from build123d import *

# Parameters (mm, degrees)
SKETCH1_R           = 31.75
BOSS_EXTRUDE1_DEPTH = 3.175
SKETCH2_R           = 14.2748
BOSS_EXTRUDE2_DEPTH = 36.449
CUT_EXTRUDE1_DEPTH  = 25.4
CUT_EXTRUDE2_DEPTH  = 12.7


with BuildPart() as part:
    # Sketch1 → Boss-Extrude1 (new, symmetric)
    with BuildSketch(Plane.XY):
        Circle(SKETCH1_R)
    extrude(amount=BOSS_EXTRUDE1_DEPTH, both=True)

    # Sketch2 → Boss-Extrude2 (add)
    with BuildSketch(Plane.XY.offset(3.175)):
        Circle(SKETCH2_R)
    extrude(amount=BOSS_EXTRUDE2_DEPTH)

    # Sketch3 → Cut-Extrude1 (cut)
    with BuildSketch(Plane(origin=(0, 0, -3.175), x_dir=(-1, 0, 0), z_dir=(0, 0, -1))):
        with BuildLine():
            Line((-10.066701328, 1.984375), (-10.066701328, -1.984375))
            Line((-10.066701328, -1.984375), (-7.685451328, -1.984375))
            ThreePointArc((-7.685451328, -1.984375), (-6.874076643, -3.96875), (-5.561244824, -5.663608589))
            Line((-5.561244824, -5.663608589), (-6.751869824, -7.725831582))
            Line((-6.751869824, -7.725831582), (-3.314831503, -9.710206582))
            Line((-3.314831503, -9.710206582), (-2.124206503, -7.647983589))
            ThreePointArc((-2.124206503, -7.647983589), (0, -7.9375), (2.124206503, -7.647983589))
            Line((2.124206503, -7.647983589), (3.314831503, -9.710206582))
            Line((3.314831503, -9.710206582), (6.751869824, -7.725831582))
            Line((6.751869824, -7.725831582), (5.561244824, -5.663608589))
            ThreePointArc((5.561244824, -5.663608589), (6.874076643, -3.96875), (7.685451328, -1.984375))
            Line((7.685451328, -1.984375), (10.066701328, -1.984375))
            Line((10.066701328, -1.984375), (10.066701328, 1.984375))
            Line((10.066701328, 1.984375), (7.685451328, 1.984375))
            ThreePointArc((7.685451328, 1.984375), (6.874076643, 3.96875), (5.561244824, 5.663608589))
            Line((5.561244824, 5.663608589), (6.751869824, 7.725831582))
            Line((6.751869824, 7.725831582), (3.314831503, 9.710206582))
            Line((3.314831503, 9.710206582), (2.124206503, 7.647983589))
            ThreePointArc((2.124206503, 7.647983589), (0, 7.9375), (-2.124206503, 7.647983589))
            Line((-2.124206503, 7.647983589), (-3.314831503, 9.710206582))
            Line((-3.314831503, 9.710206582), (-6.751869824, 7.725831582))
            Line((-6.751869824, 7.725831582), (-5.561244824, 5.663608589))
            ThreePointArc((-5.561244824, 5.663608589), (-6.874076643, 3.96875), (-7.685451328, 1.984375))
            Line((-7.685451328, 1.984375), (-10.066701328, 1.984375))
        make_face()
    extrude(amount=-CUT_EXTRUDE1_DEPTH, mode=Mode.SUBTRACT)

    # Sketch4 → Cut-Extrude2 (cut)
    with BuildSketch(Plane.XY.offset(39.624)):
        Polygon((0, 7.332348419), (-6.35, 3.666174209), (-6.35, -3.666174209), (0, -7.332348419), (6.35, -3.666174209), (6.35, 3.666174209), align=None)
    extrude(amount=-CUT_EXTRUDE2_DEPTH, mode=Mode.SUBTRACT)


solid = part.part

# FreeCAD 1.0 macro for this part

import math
import FreeCAD as App
import Part
import Sketcher

V = App.Vector
Q = App.Units.Quantity

doc = App.newDocument("Part")
body = doc.addObject("PartDesign::Body", "Body")

# Sketch on XY plane
sketch1 = body.newObject("Sketcher::SketchObject", "Sketch")
sketch1.AttachmentSupport = (doc.getObject("XY_Plane"), [""])
sketch1.MapMode = "FlatFace"
sketch1.addGeometry(Part.Circle(V(0, 0, 0), V(0, 0, 1), 31.75), False)
sketch1.addConstraint(Sketcher.Constraint("Coincident", 0, 3, -1, 1))
sketch1.addConstraint(Sketcher.Constraint("Diameter", 0, Q("2.5 in")))
pad1 = body.newObject("PartDesign::Pad", "Pad")
pad1.Profile = sketch1
pad1.Length = Q("0.25 in")
pad1.Midplane = True

# Sketch on XY plane
sketch2 = body.newObject("Sketcher::SketchObject", "Sketch001")
sketch2.AttachmentSupport = (doc.getObject("XY_Plane"), [""])
sketch2.MapMode = "FlatFace"
sketch2.AttachmentOffset = App.Placement(V(0, 0, 0.125 * 25.4), App.Rotation())
sketch2.addGeometry(Part.Circle(V(0, 0, 0), V(0, 0, 1), 14.2748), False)
sketch2.addConstraint(Sketcher.Constraint("Coincident", 0, 3, -1, 1))
sketch2.addConstraint(Sketcher.Constraint("Diameter", 0, Q("1.124 in")))
pad2 = body.newObject("PartDesign::Pad", "Pad001")
pad2.Profile = sketch2
pad2.Length = Q("1.435 in")

# Sketch on XY plane
sketch3 = body.newObject("Sketcher::SketchObject", "Sketch002")
sketch3.AttachmentSupport = (doc.getObject("XY_Plane"), [""])
sketch3.MapMode = "FlatFace"
sketch3.AttachmentOffset = App.Placement(V(0, 0, -0.125 * 25.4), App.Rotation())
sketch3.addGeometry(Part.LineSegment(V(10.066701, 1.984375, 0), V(10.066701, -1.984375, 0)), False)
sketch3.addGeometry(Part.LineSegment(V(10.066701, -1.984375, 0), V(7.685451, -1.984375, 0)), False)
sketch3.addGeometry(Part.ArcOfCircle(Part.Circle(V(0, 0, 0), V(0, 0, 1), 7.9375), math.radians(-45.522488), math.radians(-14.477512)), False)
sketch3.addGeometry(Part.LineSegment(V(5.561245, -5.663609, 0), V(6.75187, -7.725832, 0)), False)
sketch3.addGeometry(Part.LineSegment(V(6.75187, -7.725832, 0), V(3.314832, -9.710207, 0)), False)
sketch3.addGeometry(Part.LineSegment(V(3.314832, -9.710207, 0), V(2.124207, -7.647984, 0)), False)
sketch3.addGeometry(Part.ArcOfCircle(Part.Circle(V(0, 0, 0), V(0, 0, 1), 7.9375), math.radians(-105.522488), math.radians(-74.477512)), False)
sketch3.addGeometry(Part.LineSegment(V(-2.124207, -7.647984, 0), V(-3.314832, -9.710207, 0)), False)
sketch3.addGeometry(Part.LineSegment(V(-3.314832, -9.710207, 0), V(-6.75187, -7.725832, 0)), False)
sketch3.addGeometry(Part.LineSegment(V(-6.75187, -7.725832, 0), V(-5.561245, -5.663609, 0)), False)
sketch3.addGeometry(Part.ArcOfCircle(Part.Circle(V(0, 0, 0), V(0, 0, 1), 7.9375), math.radians(-165.522488), math.radians(-134.477512)), False)
sketch3.addGeometry(Part.LineSegment(V(-7.685451, -1.984375, 0), V(-10.066701, -1.984375, 0)), False)
sketch3.addGeometry(Part.LineSegment(V(-10.066701, -1.984375, 0), V(-10.066701, 1.984375, 0)), False)
sketch3.addGeometry(Part.LineSegment(V(-10.066701, 1.984375, 0), V(-7.685451, 1.984375, 0)), False)
sketch3.addGeometry(Part.ArcOfCircle(Part.Circle(V(0, 0, 0), V(0, 0, 1), 7.9375), math.radians(134.477512), math.radians(165.522488)), False)
sketch3.addGeometry(Part.LineSegment(V(-5.561245, 5.663609, 0), V(-6.75187, 7.725832, 0)), False)
sketch3.addGeometry(Part.LineSegment(V(-6.75187, 7.725832, 0), V(-3.314832, 9.710207, 0)), False)
sketch3.addGeometry(Part.LineSegment(V(-3.314832, 9.710207, 0), V(-2.124207, 7.647984, 0)), False)
sketch3.addGeometry(Part.ArcOfCircle(Part.Circle(V(0, 0, 0), V(0, 0, 1), 7.9375), math.radians(74.477512), math.radians(105.522488)), False)
sketch3.addGeometry(Part.LineSegment(V(2.124207, 7.647984, 0), V(3.314832, 9.710207, 0)), False)
sketch3.addGeometry(Part.LineSegment(V(3.314832, 9.710207, 0), V(6.75187, 7.725832, 0)), False)
sketch3.addGeometry(Part.LineSegment(V(6.75187, 7.725832, 0), V(5.561245, 5.663609, 0)), False)
sketch3.addGeometry(Part.ArcOfCircle(Part.Circle(V(0, 0, 0), V(0, 0, 1), 7.9375), math.radians(14.477512), math.radians(45.522488)), False)
sketch3.addGeometry(Part.LineSegment(V(7.685451, 1.984375, 0), V(10.066701, 1.984375, 0)), False)
sketch3.addConstraint(Sketcher.Constraint("Coincident", 0, 2, 1, 1))
sketch3.addConstraint(Sketcher.Constraint("Coincident", 1, 2, 2, 2))
sketch3.addConstraint(Sketcher.Constraint("Coincident", 2, 1, 3, 1))
sketch3.addConstraint(Sketcher.Constraint("Coincident", 3, 2, 4, 1))
sketch3.addConstraint(Sketcher.Constraint("Coincident", 4, 2, 5, 1))
sketch3.addConstraint(Sketcher.Constraint("Coincident", 5, 2, 6, 2))
sketch3.addConstraint(Sketcher.Constraint("Coincident", 6, 1, 7, 1))
sketch3.addConstraint(Sketcher.Constraint("Coincident", 7, 2, 8, 1))
sketch3.addConstraint(Sketcher.Constraint("Coincident", 8, 2, 9, 1))
sketch3.addConstraint(Sketcher.Constraint("Coincident", 9, 2, 10, 2))
sketch3.addConstraint(Sketcher.Constraint("Coincident", 10, 1, 11, 1))
sketch3.addConstraint(Sketcher.Constraint("Coincident", 11, 2, 12, 1))
sketch3.addConstraint(Sketcher.Constraint("Coincident", 12, 2, 13, 1))
sketch3.addConstraint(Sketcher.Constraint("Coincident", 13, 2, 14, 2))
sketch3.addConstraint(Sketcher.Constraint("Coincident", 14, 1, 15, 1))
sketch3.addConstraint(Sketcher.Constraint("Coincident", 15, 2, 16, 1))
sketch3.addConstraint(Sketcher.Constraint("Coincident", 16, 2, 17, 1))
sketch3.addConstraint(Sketcher.Constraint("Coincident", 17, 2, 18, 2))
sketch3.addConstraint(Sketcher.Constraint("Coincident", 18, 1, 19, 1))
sketch3.addConstraint(Sketcher.Constraint("Coincident", 19, 2, 20, 1))
sketch3.addConstraint(Sketcher.Constraint("Coincident", 20, 2, 21, 1))
sketch3.addConstraint(Sketcher.Constraint("Coincident", 21, 2, 22, 2))
sketch3.addConstraint(Sketcher.Constraint("Coincident", 22, 1, 23, 1))
sketch3.addConstraint(Sketcher.Constraint("Coincident", 23, 2, 0, 1))
sketch3.addConstraint(Sketcher.Constraint("Vertical", 0))
sketch3.addConstraint(Sketcher.Constraint("Horizontal", 1))
sketch3.addConstraint(Sketcher.Constraint("Horizontal", 11))
sketch3.addConstraint(Sketcher.Constraint("Vertical", 12))
sketch3.addConstraint(Sketcher.Constraint("Horizontal", 13))
sketch3.addConstraint(Sketcher.Constraint("Horizontal", 23))
sketch3.addConstraint(Sketcher.Constraint("Coincident", 2, 3, -1, 1))
sketch3.addConstraint(Sketcher.Constraint("Coincident", 6, 3, -1, 1))
sketch3.addConstraint(Sketcher.Constraint("Coincident", 10, 3, -1, 1))
sketch3.addConstraint(Sketcher.Constraint("Coincident", 14, 3, -1, 1))
sketch3.addConstraint(Sketcher.Constraint("Coincident", 18, 3, -1, 1))
sketch3.addConstraint(Sketcher.Constraint("Coincident", 22, 3, -1, 1))
sketch3.addConstraint(Sketcher.Constraint("Equal", 2, 6))
sketch3.addConstraint(Sketcher.Constraint("Equal", 6, 10))
sketch3.addConstraint(Sketcher.Constraint("Equal", 10, 14))
sketch3.addConstraint(Sketcher.Constraint("Equal", 14, 18))
sketch3.addConstraint(Sketcher.Constraint("Equal", 18, 22))
sketch3.addConstraint(Sketcher.Constraint("Symmetric", 0, 2, 12, 2, -1, 1))
sketch3.addConstraint(Sketcher.Constraint("Symmetric", 3, 2, 15, 2, -1, 1))
sketch3.addConstraint(Sketcher.Constraint("Symmetric", 4, 2, 16, 2, -1, 1))
sketch3.addConstraint(Sketcher.Constraint("Symmetric", 7, 2, 19, 2, -1, 1))
sketch3.addConstraint(Sketcher.Constraint("Symmetric", 8, 2, 20, 2, -1, 1))
sketch3.addConstraint(Sketcher.Constraint("Symmetric", 4, 2, 7, 2, -2))
sketch3.addConstraint(Sketcher.Constraint("Symmetric", 3, 2, 8, 2, -2))
sketch3.addConstraint(Sketcher.Constraint("Perpendicular", 3, 4))
sketch3.addConstraint(Sketcher.Constraint("Perpendicular", 4, 5))
sketch3.addConstraint(Sketcher.Constraint("Perpendicular", 7, 8))
sketch3.addConstraint(Sketcher.Constraint("Perpendicular", 8, 9))
sketch3.addConstraint(Sketcher.Constraint("Parallel", 5, 15))
sketch3.addConstraint(Sketcher.Constraint("Perpendicular", 16, 17))
sketch3.addConstraint(Sketcher.Constraint("Parallel", 9, 19))
sketch3.addConstraint(Sketcher.Constraint("Perpendicular", 20, 21))
sketch3.addConstraint(Sketcher.Constraint("Horizontal", 1, 2, 10, 1))
sketch3.addConstraint(Sketcher.Constraint("Horizontal", 13, 2, 22, 1))
sketch3.addConstraint(Sketcher.Constraint("Equal", 3, 5))
sketch3.addConstraint(Sketcher.Constraint("Angle", 3, Q("-60 deg")))
sketch3.addConstraint(Sketcher.Constraint("Radius", 2, Q("0.3125 in")))
sketch3.addConstraint(Sketcher.Constraint("DistanceX", 1, 2, 1, 1, Q("0.09375 in")))
sketch3.addConstraint(Sketcher.Constraint("DistanceY", 0, 2, 0, 1, Q("0.15625 in")))
sketch3.addConstraint(Sketcher.Constraint("Distance", 3, Q("0.09375 in")))
sketch3.addConstraint(Sketcher.Constraint("Distance", 4, Q("0.15625 in")))
pocket1 = body.newObject("PartDesign::Pocket", "Pocket")
pocket1.Profile = sketch3
pocket1.Length = Q("1 in")
pocket1.Reversed = True

# Sketch on XY plane
sketch4 = body.newObject("Sketcher::SketchObject", "Sketch003")
sketch4.AttachmentSupport = (doc.getObject("XY_Plane"), [""])
sketch4.MapMode = "FlatFace"
sketch4.AttachmentOffset = App.Placement(V(0, 0, 1.56 * 25.4), App.Rotation())
sketch4.addGeometry(Part.LineSegment(V(0, 7.332348, 0), V(-6.35, 3.666174, 0)), False)
sketch4.addGeometry(Part.LineSegment(V(-6.35, 3.666174, 0), V(-6.35, -3.666174, 0)), False)
sketch4.addGeometry(Part.LineSegment(V(-6.35, -3.666174, 0), V(0, -7.332348, 0)), False)
sketch4.addGeometry(Part.LineSegment(V(0, -7.332348, 0), V(6.35, -3.666174, 0)), False)
sketch4.addGeometry(Part.LineSegment(V(6.35, -3.666174, 0), V(6.35, 3.666174, 0)), False)
sketch4.addGeometry(Part.LineSegment(V(6.35, 3.666174, 0), V(0, 7.332348, 0)), False)
sketch4.addConstraint(Sketcher.Constraint("Coincident", 0, 2, 1, 1))
sketch4.addConstraint(Sketcher.Constraint("Coincident", 1, 2, 2, 1))
sketch4.addConstraint(Sketcher.Constraint("Coincident", 2, 2, 3, 1))
sketch4.addConstraint(Sketcher.Constraint("Coincident", 3, 2, 4, 1))
sketch4.addConstraint(Sketcher.Constraint("Coincident", 4, 2, 5, 1))
sketch4.addConstraint(Sketcher.Constraint("Coincident", 5, 2, 0, 1))
sketch4.addConstraint(Sketcher.Constraint("Vertical", 1))
sketch4.addConstraint(Sketcher.Constraint("Vertical", 4))
sketch4.addConstraint(Sketcher.Constraint("Symmetric", 0, 2, 3, 2, -1, 1))
sketch4.addConstraint(Sketcher.Constraint("Symmetric", 2, 2, 5, 2, -1, 1))
sketch4.addConstraint(Sketcher.Constraint("PointOnObject", 2, 2, -2))
sketch4.addConstraint(Sketcher.Constraint("Parallel", 2, 5))
sketch4.addConstraint(Sketcher.Constraint("Horizontal", 1, 2, 3, 2))
sketch4.addConstraint(Sketcher.Constraint("Angle", 0, Q("-150 deg")))
sketch4.addConstraint(Sketcher.Constraint("DistanceX", 1, 2, 3, 2, Q("0.5 in")))
sketch4.addConstraint(Sketcher.Constraint("DistanceY", 1, 2, 1, 1, 7.332348))
pocket2 = body.newObject("PartDesign::Pocket", "Pocket001")
pocket2.Profile = sketch4
pocket2.Length = Q("0.5 in")

doc.recompute()
